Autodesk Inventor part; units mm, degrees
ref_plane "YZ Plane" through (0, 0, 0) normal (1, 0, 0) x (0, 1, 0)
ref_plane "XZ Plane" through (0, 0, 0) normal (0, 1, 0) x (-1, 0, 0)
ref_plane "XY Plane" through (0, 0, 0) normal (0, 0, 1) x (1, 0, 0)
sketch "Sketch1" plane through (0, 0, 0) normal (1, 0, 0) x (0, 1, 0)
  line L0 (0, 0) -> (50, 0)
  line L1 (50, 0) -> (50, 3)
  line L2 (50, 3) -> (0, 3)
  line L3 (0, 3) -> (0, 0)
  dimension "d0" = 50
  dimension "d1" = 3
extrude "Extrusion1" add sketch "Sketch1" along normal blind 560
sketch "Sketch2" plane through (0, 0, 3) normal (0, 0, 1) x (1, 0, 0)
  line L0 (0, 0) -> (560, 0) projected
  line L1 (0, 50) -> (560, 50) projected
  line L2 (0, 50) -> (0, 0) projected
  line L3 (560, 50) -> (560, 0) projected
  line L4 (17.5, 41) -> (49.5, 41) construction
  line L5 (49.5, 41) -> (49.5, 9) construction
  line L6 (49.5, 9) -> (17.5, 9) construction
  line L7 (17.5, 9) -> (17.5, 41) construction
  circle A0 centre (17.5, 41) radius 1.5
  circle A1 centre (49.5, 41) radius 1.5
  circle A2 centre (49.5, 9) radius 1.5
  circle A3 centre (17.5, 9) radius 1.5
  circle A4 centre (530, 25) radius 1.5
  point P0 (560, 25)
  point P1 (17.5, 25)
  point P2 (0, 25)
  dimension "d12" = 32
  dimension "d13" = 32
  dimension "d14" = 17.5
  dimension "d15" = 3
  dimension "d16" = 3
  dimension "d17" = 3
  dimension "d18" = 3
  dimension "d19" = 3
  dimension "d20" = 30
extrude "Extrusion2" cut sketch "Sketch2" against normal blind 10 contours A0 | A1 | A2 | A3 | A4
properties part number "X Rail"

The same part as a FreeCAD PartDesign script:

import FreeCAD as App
import Part
import Sketcher
from FreeCAD import Vector
Q = App.Units.Quantity

doc = App.newDocument("Part")
body = doc.addObject("PartDesign::Body", "Body")

# Sketch on YZ plane
sketch1 = body.newObject("Sketcher::SketchObject", "Sketch")
sketch1.AttachmentSupport = (doc.getObject("YZ_Plane"), [""])
sketch1.MapMode = "FlatFace"
sketch1.addGeometry([
    Part.LineSegment(Vector(0, 3, 0), Vector(0, 0, 0)),
    Part.LineSegment(Vector(0, 0, 0), Vector(50, 0, 0)),
    Part.LineSegment(Vector(50, 0, 0), Vector(50, 3, 0)),
    Part.LineSegment(Vector(50, 3, 0), Vector(0, 3, 0)),
], False)
sketch1.addConstraint([
    Sketcher.Constraint("Coincident", 0, 2, 1, 1),
    Sketcher.Constraint("Coincident", 1, 2, 2, 1),
    Sketcher.Constraint("Coincident", 2, 2, 3, 1),
    Sketcher.Constraint("Coincident", 3, 2, 0, 1),
    Sketcher.Constraint("Vertical", 0),
    Sketcher.Constraint("Horizontal", 1),
    Sketcher.Constraint("Vertical", 2),
    Sketcher.Constraint("Horizontal", 3),
    Sketcher.Constraint("Coincident", 0, 2, -1, 1),
    Sketcher.Constraint("DistanceX", 1, 1, 1, 2, Q("50 mm")),
    Sketcher.Constraint("DistanceY", 0, 2, 0, 1, Q("3 mm")),
])
pad1 = body.newObject("PartDesign::Pad", "Pad")
pad1.Profile = sketch1
pad1.Length = 560

# Sketch on XY plane
sketch2 = body.newObject("Sketcher::SketchObject", "Sketch001")
sketch2.AttachmentSupport = (doc.getObject("XY_Plane"), [""])
sketch2.MapMode = "FlatFace"
sketch2.AttachmentOffset = App.Placement(Vector(0, 0, 3), App.Rotation())
sketch2.addGeometry([
    Part.Circle(Vector(17.5, 41, 0), Vector(0, 0, 1), 1.5),  # 0
    Part.Circle(Vector(49.5, 41, 0), Vector(0, 0, 1), 1.5),  # 1
    Part.Circle(Vector(49.5, 9, 0), Vector(0, 0, 1), 1.5),  # 2
    Part.Circle(Vector(17.5, 9, 0), Vector(0, 0, 1), 1.5),  # 3
    Part.Circle(Vector(530, 25, 0), Vector(0, 0, 1), 1.5),  # 4
], False)
sketch2.addConstraint([
    Sketcher.Constraint("Equal", 0, 1),
    Sketcher.Constraint("Equal", 1, 2),
    Sketcher.Constraint("Equal", 2, 3),
    Sketcher.Constraint("Equal", 3, 4),
    Sketcher.Constraint("Horizontal", 0, 3, 1, 3),
    Sketcher.Constraint("Horizontal", 2, 3, 3, 3),
    Sketcher.Constraint("Vertical", 1, 3, 2, 3),
    Sketcher.Constraint("Vertical", 0, 3, 3, 3),
    Sketcher.Constraint("Diameter", 0, Q("3 mm")),
    Sketcher.Constraint("DistanceX", 0, 3, 1, 3, Q("32 mm")),
    Sketcher.Constraint("DistanceY", 2, 3, 1, 3, Q("32 mm")),
    Sketcher.Constraint("DistanceX", -1, 1, 0, 3, Q("17.5 mm")),
    Sketcher.Constraint("DistanceY", -1, 1, 0, 3, Q("41 mm")),
    Sketcher.Constraint("DistanceX", -1, 1, 4, 3, Q("530 mm")),
    Sketcher.Constraint("DistanceY", -1, 1, 4, 3, Q("25 mm")),
])
pocket1 = body.newObject("PartDesign::Pocket", "Pocket")
pocket1.Profile = sketch2
pocket1.Length = 10

doc.recompute()
